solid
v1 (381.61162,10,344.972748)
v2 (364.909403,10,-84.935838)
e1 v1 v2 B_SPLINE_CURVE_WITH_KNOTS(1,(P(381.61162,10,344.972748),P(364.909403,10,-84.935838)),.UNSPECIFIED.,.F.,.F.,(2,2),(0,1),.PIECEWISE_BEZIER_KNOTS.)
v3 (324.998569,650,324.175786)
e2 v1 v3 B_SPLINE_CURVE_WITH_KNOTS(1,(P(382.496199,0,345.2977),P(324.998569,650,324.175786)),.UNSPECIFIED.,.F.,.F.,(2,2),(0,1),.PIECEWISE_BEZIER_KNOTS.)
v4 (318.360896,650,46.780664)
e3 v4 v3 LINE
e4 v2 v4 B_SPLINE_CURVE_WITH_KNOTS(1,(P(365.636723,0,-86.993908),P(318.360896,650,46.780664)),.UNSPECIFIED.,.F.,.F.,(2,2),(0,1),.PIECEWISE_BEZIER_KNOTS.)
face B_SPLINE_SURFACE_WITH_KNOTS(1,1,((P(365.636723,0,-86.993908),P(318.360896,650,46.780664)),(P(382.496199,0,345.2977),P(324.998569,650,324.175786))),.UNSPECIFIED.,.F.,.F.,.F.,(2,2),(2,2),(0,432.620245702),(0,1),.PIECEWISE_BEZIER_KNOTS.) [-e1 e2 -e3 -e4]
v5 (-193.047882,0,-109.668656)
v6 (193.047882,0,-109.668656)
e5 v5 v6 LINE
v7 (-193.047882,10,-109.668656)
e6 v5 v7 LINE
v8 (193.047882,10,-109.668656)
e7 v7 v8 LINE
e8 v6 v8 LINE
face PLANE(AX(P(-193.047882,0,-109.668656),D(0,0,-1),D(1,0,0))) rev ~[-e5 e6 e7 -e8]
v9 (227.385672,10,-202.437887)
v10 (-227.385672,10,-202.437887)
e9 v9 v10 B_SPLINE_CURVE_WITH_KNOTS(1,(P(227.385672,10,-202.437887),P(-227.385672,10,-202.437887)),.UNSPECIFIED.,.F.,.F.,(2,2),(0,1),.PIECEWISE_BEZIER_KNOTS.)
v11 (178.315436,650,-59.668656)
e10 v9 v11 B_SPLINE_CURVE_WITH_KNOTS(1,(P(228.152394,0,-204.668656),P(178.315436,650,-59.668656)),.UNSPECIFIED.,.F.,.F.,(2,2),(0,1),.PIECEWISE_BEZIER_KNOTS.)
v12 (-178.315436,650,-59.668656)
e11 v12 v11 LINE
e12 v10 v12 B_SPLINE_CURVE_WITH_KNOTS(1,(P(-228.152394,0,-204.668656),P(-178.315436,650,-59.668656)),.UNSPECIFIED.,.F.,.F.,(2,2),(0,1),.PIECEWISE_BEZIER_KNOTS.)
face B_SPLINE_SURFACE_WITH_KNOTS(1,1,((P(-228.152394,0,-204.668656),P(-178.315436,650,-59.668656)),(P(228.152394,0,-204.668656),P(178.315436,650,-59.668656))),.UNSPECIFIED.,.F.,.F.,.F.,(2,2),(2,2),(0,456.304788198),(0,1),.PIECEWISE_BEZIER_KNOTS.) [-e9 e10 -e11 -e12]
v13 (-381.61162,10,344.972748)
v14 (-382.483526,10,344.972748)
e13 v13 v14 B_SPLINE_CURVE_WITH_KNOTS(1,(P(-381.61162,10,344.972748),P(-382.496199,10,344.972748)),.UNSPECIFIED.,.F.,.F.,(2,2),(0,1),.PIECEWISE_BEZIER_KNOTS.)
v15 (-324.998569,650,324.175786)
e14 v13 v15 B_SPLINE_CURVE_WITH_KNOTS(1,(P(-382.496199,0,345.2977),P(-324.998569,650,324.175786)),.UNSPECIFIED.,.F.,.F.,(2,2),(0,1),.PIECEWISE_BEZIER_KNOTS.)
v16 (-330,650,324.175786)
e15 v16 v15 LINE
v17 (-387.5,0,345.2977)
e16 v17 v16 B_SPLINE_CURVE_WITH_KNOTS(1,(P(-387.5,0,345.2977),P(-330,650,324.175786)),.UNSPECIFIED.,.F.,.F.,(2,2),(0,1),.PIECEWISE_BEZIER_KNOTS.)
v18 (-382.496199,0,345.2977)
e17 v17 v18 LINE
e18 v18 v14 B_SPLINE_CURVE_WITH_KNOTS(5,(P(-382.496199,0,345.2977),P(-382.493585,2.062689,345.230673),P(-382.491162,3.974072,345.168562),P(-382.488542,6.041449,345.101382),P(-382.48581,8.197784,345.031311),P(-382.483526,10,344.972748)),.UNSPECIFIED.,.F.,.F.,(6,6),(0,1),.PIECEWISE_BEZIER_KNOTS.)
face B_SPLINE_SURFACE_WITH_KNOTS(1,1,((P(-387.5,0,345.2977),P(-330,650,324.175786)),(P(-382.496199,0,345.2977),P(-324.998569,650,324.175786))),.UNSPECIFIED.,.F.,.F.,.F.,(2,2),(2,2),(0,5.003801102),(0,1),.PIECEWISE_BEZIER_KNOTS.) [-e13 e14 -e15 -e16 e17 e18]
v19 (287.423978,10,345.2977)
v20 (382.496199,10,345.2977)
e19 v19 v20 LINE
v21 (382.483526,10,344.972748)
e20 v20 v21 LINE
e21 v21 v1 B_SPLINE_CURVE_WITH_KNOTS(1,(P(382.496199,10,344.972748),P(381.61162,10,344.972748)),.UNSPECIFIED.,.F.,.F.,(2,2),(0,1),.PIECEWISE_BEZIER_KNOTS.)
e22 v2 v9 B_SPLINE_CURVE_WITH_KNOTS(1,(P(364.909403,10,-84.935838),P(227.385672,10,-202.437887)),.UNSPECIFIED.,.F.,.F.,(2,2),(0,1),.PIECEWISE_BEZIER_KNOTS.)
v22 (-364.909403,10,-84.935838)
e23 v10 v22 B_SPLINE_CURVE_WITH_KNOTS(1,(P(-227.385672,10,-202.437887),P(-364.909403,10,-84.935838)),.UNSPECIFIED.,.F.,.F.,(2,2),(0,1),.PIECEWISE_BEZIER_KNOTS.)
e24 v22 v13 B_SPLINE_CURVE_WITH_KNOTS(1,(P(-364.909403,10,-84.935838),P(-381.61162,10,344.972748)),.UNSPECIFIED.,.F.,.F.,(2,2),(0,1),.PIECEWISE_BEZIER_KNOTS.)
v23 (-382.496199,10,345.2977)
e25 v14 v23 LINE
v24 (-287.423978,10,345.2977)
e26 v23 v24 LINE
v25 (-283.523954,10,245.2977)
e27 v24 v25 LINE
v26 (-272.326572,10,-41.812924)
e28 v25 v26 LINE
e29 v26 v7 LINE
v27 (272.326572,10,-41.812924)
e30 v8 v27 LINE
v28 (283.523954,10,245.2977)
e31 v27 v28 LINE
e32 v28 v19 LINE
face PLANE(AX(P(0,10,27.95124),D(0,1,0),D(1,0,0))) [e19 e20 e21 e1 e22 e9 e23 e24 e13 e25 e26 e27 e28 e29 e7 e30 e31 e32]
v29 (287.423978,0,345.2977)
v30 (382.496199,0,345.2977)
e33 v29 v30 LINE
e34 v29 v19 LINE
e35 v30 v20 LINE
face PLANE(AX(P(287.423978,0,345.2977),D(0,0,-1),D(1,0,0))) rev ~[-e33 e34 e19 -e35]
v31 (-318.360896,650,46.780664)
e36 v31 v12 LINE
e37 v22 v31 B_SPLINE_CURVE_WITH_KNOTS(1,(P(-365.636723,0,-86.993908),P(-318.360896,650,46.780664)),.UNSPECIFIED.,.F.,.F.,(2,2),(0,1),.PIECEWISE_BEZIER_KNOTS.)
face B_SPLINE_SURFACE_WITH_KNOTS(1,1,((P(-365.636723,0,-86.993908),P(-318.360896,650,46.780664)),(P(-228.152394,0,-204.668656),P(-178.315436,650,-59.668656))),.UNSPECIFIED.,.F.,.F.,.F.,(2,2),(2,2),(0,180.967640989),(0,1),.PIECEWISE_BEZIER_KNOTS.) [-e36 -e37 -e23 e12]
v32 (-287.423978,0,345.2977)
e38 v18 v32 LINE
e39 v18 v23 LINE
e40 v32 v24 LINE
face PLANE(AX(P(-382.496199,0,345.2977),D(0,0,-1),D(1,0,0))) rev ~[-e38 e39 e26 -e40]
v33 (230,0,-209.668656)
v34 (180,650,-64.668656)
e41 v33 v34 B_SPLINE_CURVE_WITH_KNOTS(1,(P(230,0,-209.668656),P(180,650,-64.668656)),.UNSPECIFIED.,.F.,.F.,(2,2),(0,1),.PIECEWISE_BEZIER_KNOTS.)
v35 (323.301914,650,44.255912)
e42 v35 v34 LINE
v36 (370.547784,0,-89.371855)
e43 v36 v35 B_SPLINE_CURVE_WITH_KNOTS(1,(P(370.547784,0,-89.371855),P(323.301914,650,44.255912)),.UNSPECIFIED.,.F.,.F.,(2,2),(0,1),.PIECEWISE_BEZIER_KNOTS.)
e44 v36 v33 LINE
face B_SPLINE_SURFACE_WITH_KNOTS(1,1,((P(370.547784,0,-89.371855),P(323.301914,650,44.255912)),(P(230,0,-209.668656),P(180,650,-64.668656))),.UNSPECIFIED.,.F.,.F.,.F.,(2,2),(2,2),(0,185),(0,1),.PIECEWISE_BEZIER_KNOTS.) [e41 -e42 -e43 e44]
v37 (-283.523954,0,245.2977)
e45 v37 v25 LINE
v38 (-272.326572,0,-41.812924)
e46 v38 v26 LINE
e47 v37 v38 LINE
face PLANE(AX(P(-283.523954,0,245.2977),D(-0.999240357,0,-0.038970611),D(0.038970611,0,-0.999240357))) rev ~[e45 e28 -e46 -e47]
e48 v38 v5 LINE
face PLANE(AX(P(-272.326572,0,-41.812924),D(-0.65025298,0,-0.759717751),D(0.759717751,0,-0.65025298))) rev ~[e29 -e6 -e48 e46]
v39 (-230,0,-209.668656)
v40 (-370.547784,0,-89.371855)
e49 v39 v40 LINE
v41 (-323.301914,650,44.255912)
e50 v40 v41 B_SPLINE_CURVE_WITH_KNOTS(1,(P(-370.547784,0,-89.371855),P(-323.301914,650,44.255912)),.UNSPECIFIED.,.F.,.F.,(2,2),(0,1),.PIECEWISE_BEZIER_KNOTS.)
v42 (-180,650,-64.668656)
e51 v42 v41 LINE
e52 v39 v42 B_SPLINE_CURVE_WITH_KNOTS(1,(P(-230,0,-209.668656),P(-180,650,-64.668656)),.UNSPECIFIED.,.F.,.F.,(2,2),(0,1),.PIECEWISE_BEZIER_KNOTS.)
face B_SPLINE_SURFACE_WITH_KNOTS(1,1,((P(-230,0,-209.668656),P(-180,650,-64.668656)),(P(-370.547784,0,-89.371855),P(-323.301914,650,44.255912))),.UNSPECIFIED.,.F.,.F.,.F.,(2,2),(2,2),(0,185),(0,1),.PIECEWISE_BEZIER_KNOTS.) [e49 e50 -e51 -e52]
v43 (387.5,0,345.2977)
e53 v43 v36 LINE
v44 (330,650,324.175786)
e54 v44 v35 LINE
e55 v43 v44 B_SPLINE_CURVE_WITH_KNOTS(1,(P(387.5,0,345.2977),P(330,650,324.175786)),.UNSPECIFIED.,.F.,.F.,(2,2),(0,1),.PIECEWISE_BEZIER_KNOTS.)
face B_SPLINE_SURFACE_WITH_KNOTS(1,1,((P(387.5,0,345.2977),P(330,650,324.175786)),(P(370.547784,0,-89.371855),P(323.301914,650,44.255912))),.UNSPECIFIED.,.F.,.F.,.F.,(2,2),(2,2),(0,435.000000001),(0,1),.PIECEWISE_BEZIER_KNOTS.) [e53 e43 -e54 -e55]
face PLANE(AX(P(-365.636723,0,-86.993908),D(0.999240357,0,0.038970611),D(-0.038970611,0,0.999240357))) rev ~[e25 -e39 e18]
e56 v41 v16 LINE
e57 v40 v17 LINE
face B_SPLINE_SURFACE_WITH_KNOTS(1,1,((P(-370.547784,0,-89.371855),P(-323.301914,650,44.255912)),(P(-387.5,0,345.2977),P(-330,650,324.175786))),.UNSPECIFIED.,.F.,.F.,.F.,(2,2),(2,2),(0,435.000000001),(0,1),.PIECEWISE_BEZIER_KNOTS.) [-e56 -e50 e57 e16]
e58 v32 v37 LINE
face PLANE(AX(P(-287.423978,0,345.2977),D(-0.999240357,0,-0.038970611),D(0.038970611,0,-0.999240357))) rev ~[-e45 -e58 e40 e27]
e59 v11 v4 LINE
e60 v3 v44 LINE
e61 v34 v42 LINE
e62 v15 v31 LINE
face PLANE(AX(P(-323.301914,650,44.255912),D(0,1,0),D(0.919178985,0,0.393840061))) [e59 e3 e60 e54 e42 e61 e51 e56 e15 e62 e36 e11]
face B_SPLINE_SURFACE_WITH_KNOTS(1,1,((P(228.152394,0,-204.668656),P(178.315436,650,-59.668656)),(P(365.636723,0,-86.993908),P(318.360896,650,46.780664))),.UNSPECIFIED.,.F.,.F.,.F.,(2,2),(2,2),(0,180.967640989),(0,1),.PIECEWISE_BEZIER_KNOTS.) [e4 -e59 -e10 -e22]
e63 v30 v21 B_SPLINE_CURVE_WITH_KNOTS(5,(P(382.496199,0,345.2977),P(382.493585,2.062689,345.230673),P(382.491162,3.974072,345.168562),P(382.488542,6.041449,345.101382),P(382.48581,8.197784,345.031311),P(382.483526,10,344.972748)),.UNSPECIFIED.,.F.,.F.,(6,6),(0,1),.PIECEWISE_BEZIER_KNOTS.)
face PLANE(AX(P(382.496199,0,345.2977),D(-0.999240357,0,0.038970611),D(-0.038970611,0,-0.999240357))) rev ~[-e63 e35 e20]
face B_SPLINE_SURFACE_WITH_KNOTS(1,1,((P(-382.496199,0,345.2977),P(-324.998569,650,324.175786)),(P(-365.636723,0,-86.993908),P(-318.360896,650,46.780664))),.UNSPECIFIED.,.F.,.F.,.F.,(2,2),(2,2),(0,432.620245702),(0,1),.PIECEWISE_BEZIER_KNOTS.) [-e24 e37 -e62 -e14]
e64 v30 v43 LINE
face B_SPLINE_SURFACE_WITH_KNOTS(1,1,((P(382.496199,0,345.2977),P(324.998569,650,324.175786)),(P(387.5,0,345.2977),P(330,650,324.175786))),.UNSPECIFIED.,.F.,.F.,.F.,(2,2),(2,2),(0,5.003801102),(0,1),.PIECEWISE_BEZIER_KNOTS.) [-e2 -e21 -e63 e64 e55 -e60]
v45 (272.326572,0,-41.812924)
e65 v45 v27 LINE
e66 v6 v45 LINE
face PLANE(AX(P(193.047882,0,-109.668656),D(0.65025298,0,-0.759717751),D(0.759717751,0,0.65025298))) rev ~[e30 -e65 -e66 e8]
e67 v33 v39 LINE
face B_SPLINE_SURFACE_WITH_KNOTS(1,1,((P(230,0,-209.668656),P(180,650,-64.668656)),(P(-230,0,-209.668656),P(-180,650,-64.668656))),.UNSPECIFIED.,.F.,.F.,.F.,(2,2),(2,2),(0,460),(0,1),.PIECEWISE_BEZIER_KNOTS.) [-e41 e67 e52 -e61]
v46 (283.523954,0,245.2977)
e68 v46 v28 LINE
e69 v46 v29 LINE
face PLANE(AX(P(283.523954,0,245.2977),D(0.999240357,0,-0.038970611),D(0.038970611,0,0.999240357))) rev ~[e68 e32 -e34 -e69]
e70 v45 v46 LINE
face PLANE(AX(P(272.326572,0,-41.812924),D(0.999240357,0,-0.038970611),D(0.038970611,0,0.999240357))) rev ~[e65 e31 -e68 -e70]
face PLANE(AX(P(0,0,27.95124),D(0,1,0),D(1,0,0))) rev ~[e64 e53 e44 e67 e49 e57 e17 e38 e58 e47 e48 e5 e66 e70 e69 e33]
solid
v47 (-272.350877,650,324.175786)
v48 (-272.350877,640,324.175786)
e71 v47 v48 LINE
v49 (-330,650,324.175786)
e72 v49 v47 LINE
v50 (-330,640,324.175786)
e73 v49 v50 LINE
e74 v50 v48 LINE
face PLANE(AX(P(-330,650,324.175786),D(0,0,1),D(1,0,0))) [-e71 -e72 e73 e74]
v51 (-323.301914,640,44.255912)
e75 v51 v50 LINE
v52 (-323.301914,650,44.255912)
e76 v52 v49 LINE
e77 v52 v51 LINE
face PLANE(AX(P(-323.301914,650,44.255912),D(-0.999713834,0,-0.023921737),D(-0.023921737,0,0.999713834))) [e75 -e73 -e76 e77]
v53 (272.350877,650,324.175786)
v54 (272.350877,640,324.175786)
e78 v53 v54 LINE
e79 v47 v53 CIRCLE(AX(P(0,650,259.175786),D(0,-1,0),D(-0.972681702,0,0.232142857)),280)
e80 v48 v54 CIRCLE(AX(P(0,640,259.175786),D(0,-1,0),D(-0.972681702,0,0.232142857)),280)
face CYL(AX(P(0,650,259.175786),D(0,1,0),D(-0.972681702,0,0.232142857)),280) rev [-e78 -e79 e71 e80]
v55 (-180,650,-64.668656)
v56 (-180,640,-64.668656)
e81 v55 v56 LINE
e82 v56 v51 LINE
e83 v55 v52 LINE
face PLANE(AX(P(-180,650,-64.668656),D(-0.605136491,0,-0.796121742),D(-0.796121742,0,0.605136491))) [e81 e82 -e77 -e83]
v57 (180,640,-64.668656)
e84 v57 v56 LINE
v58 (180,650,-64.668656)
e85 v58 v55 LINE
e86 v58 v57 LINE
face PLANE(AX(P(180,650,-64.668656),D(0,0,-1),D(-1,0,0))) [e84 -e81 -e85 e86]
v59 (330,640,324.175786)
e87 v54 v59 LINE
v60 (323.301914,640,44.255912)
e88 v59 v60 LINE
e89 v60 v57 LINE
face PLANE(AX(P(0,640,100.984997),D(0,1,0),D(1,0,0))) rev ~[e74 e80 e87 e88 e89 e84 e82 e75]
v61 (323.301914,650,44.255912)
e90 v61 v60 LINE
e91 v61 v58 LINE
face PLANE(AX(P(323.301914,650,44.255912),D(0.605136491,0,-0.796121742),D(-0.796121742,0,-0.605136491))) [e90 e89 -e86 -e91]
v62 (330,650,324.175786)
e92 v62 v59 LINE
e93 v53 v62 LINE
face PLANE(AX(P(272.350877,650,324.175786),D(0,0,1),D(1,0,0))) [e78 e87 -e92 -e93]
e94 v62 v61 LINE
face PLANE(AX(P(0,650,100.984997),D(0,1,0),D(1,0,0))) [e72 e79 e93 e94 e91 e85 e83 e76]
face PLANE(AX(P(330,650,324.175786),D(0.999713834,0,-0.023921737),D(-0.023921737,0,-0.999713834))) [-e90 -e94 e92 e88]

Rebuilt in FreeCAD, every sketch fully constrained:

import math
import FreeCAD as App
import Part
import Sketcher

V = App.Vector


def add_polygon(sketch, points):
    """Adds a closed chain of lines whose ends are joined by coincident constraints."""
    first, n = sketch.GeometryCount, len(points)
    for a, b in zip(points, points[1:] + points[:1]):
        sketch.addGeometry(Part.LineSegment(App.Vector(*a, 0), App.Vector(*b, 0)), False)
    for i in range(n):
        sketch.addConstraint(Sketcher.Constraint("Coincident", first + i, 2, first + (i + 1) % n, 1))

doc = App.newDocument("Part")
body = doc.addObject("PartDesign::Body", "Body")

sketch1 = body.newObject("Sketcher::SketchObject", "Sketch")
sketch1.AttachmentSupport = (doc.getObject("XZ_Plane"), [""])
sketch1.MapMode = "FlatFace"
add_polygon(sketch1, [(-370.547784, -89.371855), (-387.5, 345.2977), (-382.496199, 345.2977), (-365.636723, -86.993908), (-228.152394, -204.668656), (228.152394, -204.668656), (365.636723, -86.993908), (382.496199, 345.2977), (387.5, 345.2977), (370.547784, -89.371855), (230, -209.668656), (-230, -209.668656)])
sketch1.addConstraint([
    Sketcher.Constraint("Horizontal", 1),
    Sketcher.Constraint("Horizontal", 4),
    Sketcher.Constraint("Horizontal", 7),
    Sketcher.Constraint("Horizontal", 10),
    Sketcher.Constraint("Symmetric", 2, 2, 5, 2, -2),
    Sketcher.Constraint("Symmetric", 1, 2, 6, 2, -2),
    Sketcher.Constraint("Symmetric", 8, 2, 11, 2, -2),
    Sketcher.Constraint("Parallel", 0, 2),
    Sketcher.Constraint("Parallel", 6, 8),
    Sketcher.Constraint("Parallel", 5, 9),
    Sketcher.Constraint("Parallel", 3, 11),
    Sketcher.Constraint("Equal", 3, 5),
    Sketcher.Constraint("DistanceX", 10, 2, 10, 1, 460.0),
    Sketcher.Constraint("Distance", 0, 435.0),
    Sketcher.Constraint("Distance", 9, 185.0),
    Sketcher.Constraint("DistanceX", 0, 2, 7, 2, 775.0),
    Sketcher.Constraint("DistanceY", 9, 2, 4, 2, 5.0),
    Sketcher.Constraint("DistanceX", 1, 1, 1, 2, 5.003801),
    Sketcher.Constraint("DistanceX", 4, 1, 4, 2, 456.304788),
    Sketcher.Constraint("DistanceY", -1, 1, 0, 2, 345.2977),
    Sketcher.Constraint("DistanceY", 4, 2, 8, 2, 115.296801),
])

sketch2 = body.newObject("Sketcher::SketchObject", "Sketch001")
sketch2.AttachmentSupport = (doc.getObject("XZ_Plane"), [""])
sketch2.MapMode = "FlatFace"
sketch2.AttachmentOffset = App.Placement(V(0, 0, -650), App.Rotation())
add_polygon(sketch2, [(-323.301914, 44.255912), (-330, 324.175786), (-324.998569, 324.175786), (-318.360896, 46.780664), (-178.315436, -59.668656), (178.315436, -59.668656), (318.360896, 46.780664), (324.998569, 324.175786), (330, 324.175786), (323.301914, 44.255912), (180, -64.668656), (-180, -64.668656)])
sketch2.addConstraint([
    Sketcher.Constraint("Horizontal", 1),
    Sketcher.Constraint("Horizontal", 4),
    Sketcher.Constraint("Horizontal", 7),
    Sketcher.Constraint("Horizontal", 10),
    Sketcher.Constraint("Symmetric", 2, 2, 5, 2, -2),
    Sketcher.Constraint("Symmetric", 1, 2, 6, 2, -2),
    Sketcher.Constraint("Symmetric", 8, 2, 11, 2, -2),
    Sketcher.Constraint("Parallel", 0, 2),
    Sketcher.Constraint("Parallel", 6, 8),
    Sketcher.Constraint("Parallel", 5, 9),
    Sketcher.Constraint("Parallel", 3, 11),
    Sketcher.Constraint("Equal", 3, 5),
    Sketcher.Constraint("DistanceX", 10, 2, 10, 1, 360.0),
    Sketcher.Constraint("Distance", 0, 280.0),
    Sketcher.Constraint("Distance", 9, 180.0),
    Sketcher.Constraint("DistanceX", 0, 2, -1, 1, 330.0),
    Sketcher.Constraint("DistanceY", 9, 2, 4, 2, 5.0),
    Sketcher.Constraint("DistanceX", 1, 1, 1, 2, 5.001431),
    Sketcher.Constraint("DistanceX", 4, 1, 4, 2, 356.630872),
    Sketcher.Constraint("DistanceY", 2, 2, 1, 2, 277.395122),
    Sketcher.Constraint("DistanceY", -1, 1, 0, 2, 324.175786),
])

additiveloft = body.newObject("PartDesign::AdditiveLoft", "AdditiveLoft")
additiveloft.Profile = sketch1
additiveloft.Sections = [sketch2]

sketch3 = body.newObject("Sketcher::SketchObject", "Sketch002")
sketch3.AttachmentSupport = (doc.getObject("XZ_Plane"), [""])
sketch3.MapMode = "FlatFace"
add_polygon(sketch3, [(-365.636723, -86.993908), (-382.496199, 345.2977), (-287.423978, 345.2977), (-283.523954, 245.2977), (-272.326572, -41.812924), (-193.047882, -109.668656), (193.047882, -109.668656), (272.326572, -41.812924), (283.523954, 245.2977), (287.423978, 345.2977), (382.496199, 345.2977), (365.636723, -86.993908), (228.152394, -204.668656), (-228.152394, -204.668656)])
sketch3.addConstraint([
    Sketcher.Constraint("Horizontal", 1),
    Sketcher.Constraint("Horizontal", 5),
    Sketcher.Constraint("Horizontal", 9),
    Sketcher.Constraint("Horizontal", 12),
    Sketcher.Constraint("Symmetric", 3, 2, 6, 2, -2),
    Sketcher.Constraint("Symmetric", 2, 2, 7, 2, -2),
    Sketcher.Constraint("Symmetric", 1, 2, 8, 2, -2),
    Sketcher.Constraint("Symmetric", 10, 2, 13, 2, -2),
    Sketcher.Constraint("Parallel", 0, 2),
    Sketcher.Constraint("Parallel", 2, 3),
    Sketcher.Constraint("Parallel", 8, 10),
    Sketcher.Constraint("Parallel", 6, 11),
    Sketcher.Constraint("Parallel", 4, 13),
    Sketcher.Constraint("Equal", 4, 6),
    Sketcher.Constraint("DistanceY", 2, 2, 1, 2, 100.0),
    Sketcher.Constraint("DistanceY", 11, 2, 5, 2, 95.0),
    Sketcher.Constraint("DistanceX", 1, 1, 1, 2, 95.072221),
    Sketcher.Constraint("DistanceX", 12, 2, 12, 1, 456.304788),
    Sketcher.Constraint("DistanceX", 0, 2, -1, 1, 382.496199),
    Sketcher.Constraint("DistanceY", -1, 1, 0, 2, 345.2977),
    Sketcher.Constraint("Distance", 3, 287.328892),
    Sketcher.Constraint("Distance", 4, 104.35282),
    Sketcher.Constraint("Distance", 11, 180.967641),
    Sketcher.Constraint("DistanceX", 5, 1, 5, 2, 386.095764),
])
pad1 = body.newObject("PartDesign::Pad", "Pad")
pad1.Profile = sketch3
pad1.Length = 10
pad1.Reversed = True
body2 = doc.addObject("PartDesign::Body", "Body001")

sketch4 = body2.newObject("Sketcher::SketchObject", "Sketch003")
sketch4.AttachmentSupport = (doc.getObject("XZ_Plane001"), [""])
sketch4.MapMode = "FlatFace"
sketch4.AttachmentOffset = App.Placement(V(0, 0, -650), App.Rotation())
sketch4.addGeometry([
    Part.ArcOfCircle(Part.Circle(V(0, 259.175786, 0), V(0, 0, 1), 280), math.radians(166.576736), math.radians(373.423264)),
    Part.LineSegment(V(272.350877, 324.175786, 0), V(330, 324.175786, 0)),
    Part.LineSegment(V(330, 324.175786, 0), V(323.301914, 44.255912, 0)),
    Part.LineSegment(V(323.301914, 44.255912, 0), V(180, -64.668656, 0)),
    Part.LineSegment(V(180, -64.668656, 0), V(-180, -64.668656, 0)),
    Part.LineSegment(V(-180, -64.668656, 0), V(-323.301914, 44.255912, 0)),
    Part.LineSegment(V(-323.301914, 44.255912, 0), V(-330, 324.175786, 0)),
    Part.LineSegment(V(-330, 324.175786, 0), V(-272.350877, 324.175786, 0)),
], False)
sketch4.addConstraint([
    Sketcher.Constraint("Coincident", 0, 2, 1, 1),
    Sketcher.Constraint("Coincident", 1, 2, 2, 1),
    Sketcher.Constraint("Coincident", 2, 2, 3, 1),
    Sketcher.Constraint("Coincident", 3, 2, 4, 1),
    Sketcher.Constraint("Coincident", 4, 2, 5, 1),
    Sketcher.Constraint("Coincident", 5, 2, 6, 1),
    Sketcher.Constraint("Coincident", 6, 2, 7, 1),
    Sketcher.Constraint("Coincident", 7, 2, 0, 1),
    Sketcher.Constraint("Horizontal", 1),
    Sketcher.Constraint("Horizontal", 4),
    Sketcher.Constraint("Horizontal", 7),
    Sketcher.Constraint("Symmetric", 2, 2, 5, 2, -2),
    Sketcher.Constraint("Symmetric", 1, 2, 6, 2, -2),
    Sketcher.Constraint("PointOnObject", 0, 3, -2),
    Sketcher.Constraint("Equal", 3, 5),
    Sketcher.Constraint("Radius", 0, 280.0),
    Sketcher.Constraint("DistanceX", 4, 2, 4, 1, 360.0),
    Sketcher.Constraint("Distance", 2, 280.0),
    Sketcher.Constraint("Distance", 3, 180.0),
    Sketcher.Constraint("DistanceX", -1, 1, 1, 2, 330.0),
    Sketcher.Constraint("DistanceY", 0, 3, 0, 2, 65.0),
    Sketcher.Constraint("DistanceY", 3, 2, 2, 2, 108.924568),
    Sketcher.Constraint("DistanceY", -1, 1, 0, 3, 259.175786),
])
pad2 = body2.newObject("PartDesign::Pad", "Pad001")
pad2.Profile = sketch4
pad2.Length = 10

doc.recompute()
